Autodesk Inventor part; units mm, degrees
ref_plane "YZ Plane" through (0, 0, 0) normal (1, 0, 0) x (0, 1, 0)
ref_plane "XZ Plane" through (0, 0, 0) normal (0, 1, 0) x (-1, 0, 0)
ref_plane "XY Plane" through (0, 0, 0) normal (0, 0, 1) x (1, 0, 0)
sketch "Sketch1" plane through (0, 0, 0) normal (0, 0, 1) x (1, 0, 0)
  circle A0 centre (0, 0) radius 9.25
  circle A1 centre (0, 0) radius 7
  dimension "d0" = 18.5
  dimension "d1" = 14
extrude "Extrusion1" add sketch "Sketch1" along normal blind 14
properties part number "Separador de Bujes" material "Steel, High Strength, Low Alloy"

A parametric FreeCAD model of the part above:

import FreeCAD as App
import Part
import Sketcher

V = App.Vector

doc = App.newDocument("Part")
body = doc.addObject("PartDesign::Body", "Body")

sketch1 = body.newObject("Sketcher::SketchObject", "Sketch")
sketch1.AttachmentSupport = (doc.getObject("XY_Plane"), [""])
sketch1.MapMode = "FlatFace"
sketch1.addGeometry(Part.Circle(V(0, 0, 0), V(0, 0, 1), 9), False)
sketch1.addGeometry(Part.Circle(V(0, 0, 0), V(0, 0, 1), 7), False)
sketch1.addConstraint(Sketcher.Constraint("Coincident", 0, 3, -1, 1))
sketch1.addConstraint(Sketcher.Constraint("Coincident", 1, 3, -1, 1))
sketch1.addConstraint(Sketcher.Constraint("Diameter", 1, 14.0))
sketch1.addConstraint(Sketcher.Constraint("Diameter", 0, 18.5))
pad1 = body.newObject("PartDesign::Pad", "Pad")
pad1.Profile = sketch1
pad1.Length = 14

doc.recompute()
